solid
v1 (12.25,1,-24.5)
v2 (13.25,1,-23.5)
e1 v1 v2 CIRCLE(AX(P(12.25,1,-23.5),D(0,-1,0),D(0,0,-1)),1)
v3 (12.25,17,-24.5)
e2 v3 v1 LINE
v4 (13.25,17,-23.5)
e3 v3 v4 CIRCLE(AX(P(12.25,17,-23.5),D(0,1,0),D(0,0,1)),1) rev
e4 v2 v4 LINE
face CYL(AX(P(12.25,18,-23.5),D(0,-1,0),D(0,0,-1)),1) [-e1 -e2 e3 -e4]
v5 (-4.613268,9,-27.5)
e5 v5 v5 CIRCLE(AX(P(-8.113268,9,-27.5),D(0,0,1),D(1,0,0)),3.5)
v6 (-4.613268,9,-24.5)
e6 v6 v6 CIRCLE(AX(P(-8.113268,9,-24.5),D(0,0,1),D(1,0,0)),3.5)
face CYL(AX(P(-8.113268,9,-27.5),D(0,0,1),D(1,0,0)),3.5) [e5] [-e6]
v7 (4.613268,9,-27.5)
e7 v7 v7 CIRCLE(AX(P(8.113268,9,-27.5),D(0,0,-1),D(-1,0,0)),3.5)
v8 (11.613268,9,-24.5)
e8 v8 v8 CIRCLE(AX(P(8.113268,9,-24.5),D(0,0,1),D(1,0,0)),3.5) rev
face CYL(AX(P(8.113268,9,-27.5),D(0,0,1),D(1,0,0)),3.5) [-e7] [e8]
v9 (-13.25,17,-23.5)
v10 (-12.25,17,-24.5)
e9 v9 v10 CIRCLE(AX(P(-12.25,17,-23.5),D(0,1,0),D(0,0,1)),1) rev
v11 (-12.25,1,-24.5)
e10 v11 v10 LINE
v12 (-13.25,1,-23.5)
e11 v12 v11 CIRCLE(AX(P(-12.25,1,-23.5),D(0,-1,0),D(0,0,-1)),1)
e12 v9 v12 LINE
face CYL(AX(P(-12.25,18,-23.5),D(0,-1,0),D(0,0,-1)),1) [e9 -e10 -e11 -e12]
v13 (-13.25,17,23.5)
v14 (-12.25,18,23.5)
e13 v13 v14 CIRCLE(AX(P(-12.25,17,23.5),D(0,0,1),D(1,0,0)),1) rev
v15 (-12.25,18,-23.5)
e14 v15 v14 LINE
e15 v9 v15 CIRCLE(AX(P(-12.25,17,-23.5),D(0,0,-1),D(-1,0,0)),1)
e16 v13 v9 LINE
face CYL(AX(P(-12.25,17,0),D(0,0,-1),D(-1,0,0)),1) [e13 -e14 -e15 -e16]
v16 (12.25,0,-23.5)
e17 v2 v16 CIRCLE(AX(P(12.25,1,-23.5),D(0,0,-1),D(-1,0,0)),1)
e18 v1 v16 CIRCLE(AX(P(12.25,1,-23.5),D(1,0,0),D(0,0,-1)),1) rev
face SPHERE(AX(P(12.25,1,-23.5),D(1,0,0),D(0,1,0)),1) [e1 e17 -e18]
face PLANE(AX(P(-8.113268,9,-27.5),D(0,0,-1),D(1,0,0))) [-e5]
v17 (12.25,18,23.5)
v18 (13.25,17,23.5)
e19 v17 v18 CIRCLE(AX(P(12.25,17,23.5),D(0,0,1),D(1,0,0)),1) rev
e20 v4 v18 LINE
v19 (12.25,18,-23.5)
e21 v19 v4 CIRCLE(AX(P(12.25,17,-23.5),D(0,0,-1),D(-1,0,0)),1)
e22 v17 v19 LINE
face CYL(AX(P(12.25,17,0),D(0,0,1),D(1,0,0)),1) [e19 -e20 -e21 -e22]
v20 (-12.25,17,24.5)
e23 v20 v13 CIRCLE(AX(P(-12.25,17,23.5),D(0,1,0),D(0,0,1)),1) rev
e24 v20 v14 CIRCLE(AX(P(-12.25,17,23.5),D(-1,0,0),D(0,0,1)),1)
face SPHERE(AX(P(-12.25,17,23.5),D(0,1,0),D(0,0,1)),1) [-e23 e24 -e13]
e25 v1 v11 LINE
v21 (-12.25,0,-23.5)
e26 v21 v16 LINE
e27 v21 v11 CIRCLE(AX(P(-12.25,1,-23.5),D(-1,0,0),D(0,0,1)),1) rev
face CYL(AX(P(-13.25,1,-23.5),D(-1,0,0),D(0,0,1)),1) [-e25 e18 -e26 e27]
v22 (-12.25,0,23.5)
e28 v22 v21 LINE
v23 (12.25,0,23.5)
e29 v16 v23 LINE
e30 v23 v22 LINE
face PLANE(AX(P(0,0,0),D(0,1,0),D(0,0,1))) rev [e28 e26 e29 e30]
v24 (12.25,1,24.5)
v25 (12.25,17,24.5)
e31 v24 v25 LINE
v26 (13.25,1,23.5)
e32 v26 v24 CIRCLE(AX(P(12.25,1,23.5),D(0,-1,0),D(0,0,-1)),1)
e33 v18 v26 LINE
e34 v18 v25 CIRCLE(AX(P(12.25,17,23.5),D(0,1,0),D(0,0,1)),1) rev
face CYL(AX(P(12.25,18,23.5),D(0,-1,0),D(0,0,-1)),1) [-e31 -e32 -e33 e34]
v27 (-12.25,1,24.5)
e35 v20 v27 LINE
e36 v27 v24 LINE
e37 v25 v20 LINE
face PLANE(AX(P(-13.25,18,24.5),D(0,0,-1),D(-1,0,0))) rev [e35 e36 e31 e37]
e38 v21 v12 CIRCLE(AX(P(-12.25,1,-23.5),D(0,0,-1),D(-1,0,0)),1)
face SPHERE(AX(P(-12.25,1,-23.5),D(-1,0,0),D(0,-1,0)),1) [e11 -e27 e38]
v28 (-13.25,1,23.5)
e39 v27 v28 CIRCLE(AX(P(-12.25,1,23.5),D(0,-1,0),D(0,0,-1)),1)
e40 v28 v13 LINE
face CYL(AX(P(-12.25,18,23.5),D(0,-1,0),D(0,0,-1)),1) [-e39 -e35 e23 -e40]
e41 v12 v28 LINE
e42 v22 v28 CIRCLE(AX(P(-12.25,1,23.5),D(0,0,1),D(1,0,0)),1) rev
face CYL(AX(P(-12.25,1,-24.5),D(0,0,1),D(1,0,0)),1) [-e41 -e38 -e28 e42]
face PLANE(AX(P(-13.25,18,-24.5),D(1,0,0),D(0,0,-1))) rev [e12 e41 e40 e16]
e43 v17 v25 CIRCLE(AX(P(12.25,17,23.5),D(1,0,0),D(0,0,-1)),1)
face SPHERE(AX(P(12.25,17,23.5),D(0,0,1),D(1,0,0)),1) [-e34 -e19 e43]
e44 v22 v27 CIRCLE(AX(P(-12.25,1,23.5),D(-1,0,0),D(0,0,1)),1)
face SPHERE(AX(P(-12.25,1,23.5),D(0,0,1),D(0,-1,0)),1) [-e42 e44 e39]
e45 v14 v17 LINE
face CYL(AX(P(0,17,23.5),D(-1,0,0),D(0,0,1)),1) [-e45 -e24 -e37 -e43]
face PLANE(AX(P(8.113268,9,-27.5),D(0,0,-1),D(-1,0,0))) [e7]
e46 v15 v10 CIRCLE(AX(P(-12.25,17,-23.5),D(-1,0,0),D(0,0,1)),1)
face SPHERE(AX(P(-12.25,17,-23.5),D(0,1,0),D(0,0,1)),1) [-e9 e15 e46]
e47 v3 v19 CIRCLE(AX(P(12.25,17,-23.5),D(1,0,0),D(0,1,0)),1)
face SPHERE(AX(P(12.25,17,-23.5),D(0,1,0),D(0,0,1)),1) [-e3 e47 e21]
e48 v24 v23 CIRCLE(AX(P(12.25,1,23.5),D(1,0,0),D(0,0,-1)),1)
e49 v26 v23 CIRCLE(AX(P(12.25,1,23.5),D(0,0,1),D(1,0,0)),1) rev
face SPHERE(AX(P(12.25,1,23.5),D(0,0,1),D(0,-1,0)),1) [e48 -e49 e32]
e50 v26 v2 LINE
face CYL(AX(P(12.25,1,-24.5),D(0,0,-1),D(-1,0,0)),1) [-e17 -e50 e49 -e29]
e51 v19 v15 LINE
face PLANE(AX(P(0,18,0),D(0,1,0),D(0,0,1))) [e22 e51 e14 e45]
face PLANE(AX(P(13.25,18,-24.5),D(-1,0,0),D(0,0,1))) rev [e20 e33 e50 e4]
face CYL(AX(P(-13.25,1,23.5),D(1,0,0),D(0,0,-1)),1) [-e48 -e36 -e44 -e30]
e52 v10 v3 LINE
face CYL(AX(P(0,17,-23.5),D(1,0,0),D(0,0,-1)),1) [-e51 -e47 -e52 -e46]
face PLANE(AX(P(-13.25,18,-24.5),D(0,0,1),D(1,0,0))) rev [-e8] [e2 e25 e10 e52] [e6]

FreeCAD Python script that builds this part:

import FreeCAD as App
import Part
import Sketcher
Q = App.Units.Quantity


def add_polygon(sketch, points):
    """Adds a closed chain of lines whose ends are joined by coincident constraints."""
    first, n = sketch.GeometryCount, len(points)
    for a, b in zip(points, points[1:] + points[:1]):
        sketch.addGeometry(Part.LineSegment(App.Vector(*a, 0), App.Vector(*b, 0)), False)
    for i in range(n):
        sketch.addConstraint(Sketcher.Constraint("Coincident", first + i, 2, first + (i + 1) % n, 1))

doc = App.newDocument("Part")
body = doc.addObject("PartDesign::Body", "Body")

# Sketch on XZ plane
sketch1 = body.newObject("Sketcher::SketchObject", "Sketch")
sketch1.AttachmentSupport = (doc.getObject("XZ_Plane"), [""])
sketch1.MapMode = "FlatFace"
add_polygon(sketch1, [(-13, -24), (-13, 24), (13, 24), (13, -24)])  # lines 0-3
sketch1.addConstraint(Sketcher.Constraint("Vertical", 0))
sketch1.addConstraint(Sketcher.Constraint("Horizontal", 1))
sketch1.addConstraint(Sketcher.Constraint("Vertical", 2))
sketch1.addConstraint(Sketcher.Constraint("Horizontal", 3))
sketch1.addConstraint(Sketcher.Constraint("Symmetric", 0, 2, 2, 2, -1, 1))
sketch1.addConstraint(Sketcher.Constraint("DistanceY", 0, 1, 0, 2, Q("49 mm")))
sketch1.addConstraint(Sketcher.Constraint("DistanceX", 1, 1, 1, 2, Q("26.5 mm")))
pad1 = body.newObject("PartDesign::Pad", "Pad")
pad1.Profile = sketch1
pad1.Length = 18
pad1.Reversed = True
doc.recompute()

fillet = body.newObject("PartDesign::Fillet", "Fillet")
fillet.Base = (pad1, ["Edge1"])
fillet.UseAllEdges = True
fillet.Radius = 1

# Sketch on XY plane
sketch2 = body.newObject("Sketcher::SketchObject", "Sketch001")
sketch2.AttachmentSupport = (doc.getObject("XY_Plane"), [""])
sketch2.MapMode = "FlatFace"
sketch2.AttachmentOffset = App.Placement(App.Vector(0, 0, -24.5), App.Rotation())
sketch2.addGeometry(Part.Circle(App.Vector(8.1, 9, 0), App.Vector(0, 0, 1), 3.5), False)
sketch2.addConstraint(Sketcher.Constraint("Diameter", 0, Q("7 mm")))
sketch2.addConstraint(Sketcher.Constraint("DistanceY", -1, 1, 0, 3, Q("9 mm")))
sketch2.addConstraint(Sketcher.Constraint("DistanceX", -1, 1, 0, 3, Q("8.113268 mm")))
pad2 = body.newObject("PartDesign::Pad", "Pad001")
pad2.Profile = sketch2
pad2.Length = 3
pad2.Reversed = True
doc.recompute()

mirrored = body.newObject("PartDesign::Mirrored", "Mirrored")
mirrored.Originals = [pad2]
mirrored.MirrorPlane = (doc.getObject("YZ_Plane"), [""])
body.Tip = mirrored

doc.recompute()
